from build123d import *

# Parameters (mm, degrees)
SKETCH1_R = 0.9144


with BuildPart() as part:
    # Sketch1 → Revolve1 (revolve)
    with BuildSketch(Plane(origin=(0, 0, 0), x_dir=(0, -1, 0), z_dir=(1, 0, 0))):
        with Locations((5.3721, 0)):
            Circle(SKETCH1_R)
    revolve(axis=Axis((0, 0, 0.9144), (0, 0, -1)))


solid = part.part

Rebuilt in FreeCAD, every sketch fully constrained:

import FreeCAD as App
import Part
import Sketcher
from FreeCAD import Vector
Q = App.Units.Quantity

doc = App.newDocument("Part")
body = doc.addObject("PartDesign::Body", "Body")

# Sketch on YZ plane
sketch1 = doc.addObject("Sketcher::SketchObject", "Sketch")
body.addObject(sketch1)
sketch1.AttachmentSupport = (doc.YZ_Plane, [""])
sketch1.MapMode = "FlatFace"
sketch1.addGeometry(Part.Circle(Vector(-5.4, 0, 0), Vector(0, 0, 1), 0.9), False)
sketch1.addConstraint(Sketcher.Constraint("PointOnObject", 0, 3, -1))
sketch1.addConstraint(Sketcher.Constraint("Diameter", 0, Q("0.072 in")))
sketch1.addConstraint(Sketcher.Constraint("DistanceX", 0, 3, -1, 1, Q("0.2115 in")))
revolution = doc.addObject("PartDesign::Revolution", "Revolution")
body.addObject(revolution)
revolution.Profile = sketch1
revolution.ReferenceAxis = (sketch1, ["V_Axis"])
revolution.Angle = 360

doc.recompute()
